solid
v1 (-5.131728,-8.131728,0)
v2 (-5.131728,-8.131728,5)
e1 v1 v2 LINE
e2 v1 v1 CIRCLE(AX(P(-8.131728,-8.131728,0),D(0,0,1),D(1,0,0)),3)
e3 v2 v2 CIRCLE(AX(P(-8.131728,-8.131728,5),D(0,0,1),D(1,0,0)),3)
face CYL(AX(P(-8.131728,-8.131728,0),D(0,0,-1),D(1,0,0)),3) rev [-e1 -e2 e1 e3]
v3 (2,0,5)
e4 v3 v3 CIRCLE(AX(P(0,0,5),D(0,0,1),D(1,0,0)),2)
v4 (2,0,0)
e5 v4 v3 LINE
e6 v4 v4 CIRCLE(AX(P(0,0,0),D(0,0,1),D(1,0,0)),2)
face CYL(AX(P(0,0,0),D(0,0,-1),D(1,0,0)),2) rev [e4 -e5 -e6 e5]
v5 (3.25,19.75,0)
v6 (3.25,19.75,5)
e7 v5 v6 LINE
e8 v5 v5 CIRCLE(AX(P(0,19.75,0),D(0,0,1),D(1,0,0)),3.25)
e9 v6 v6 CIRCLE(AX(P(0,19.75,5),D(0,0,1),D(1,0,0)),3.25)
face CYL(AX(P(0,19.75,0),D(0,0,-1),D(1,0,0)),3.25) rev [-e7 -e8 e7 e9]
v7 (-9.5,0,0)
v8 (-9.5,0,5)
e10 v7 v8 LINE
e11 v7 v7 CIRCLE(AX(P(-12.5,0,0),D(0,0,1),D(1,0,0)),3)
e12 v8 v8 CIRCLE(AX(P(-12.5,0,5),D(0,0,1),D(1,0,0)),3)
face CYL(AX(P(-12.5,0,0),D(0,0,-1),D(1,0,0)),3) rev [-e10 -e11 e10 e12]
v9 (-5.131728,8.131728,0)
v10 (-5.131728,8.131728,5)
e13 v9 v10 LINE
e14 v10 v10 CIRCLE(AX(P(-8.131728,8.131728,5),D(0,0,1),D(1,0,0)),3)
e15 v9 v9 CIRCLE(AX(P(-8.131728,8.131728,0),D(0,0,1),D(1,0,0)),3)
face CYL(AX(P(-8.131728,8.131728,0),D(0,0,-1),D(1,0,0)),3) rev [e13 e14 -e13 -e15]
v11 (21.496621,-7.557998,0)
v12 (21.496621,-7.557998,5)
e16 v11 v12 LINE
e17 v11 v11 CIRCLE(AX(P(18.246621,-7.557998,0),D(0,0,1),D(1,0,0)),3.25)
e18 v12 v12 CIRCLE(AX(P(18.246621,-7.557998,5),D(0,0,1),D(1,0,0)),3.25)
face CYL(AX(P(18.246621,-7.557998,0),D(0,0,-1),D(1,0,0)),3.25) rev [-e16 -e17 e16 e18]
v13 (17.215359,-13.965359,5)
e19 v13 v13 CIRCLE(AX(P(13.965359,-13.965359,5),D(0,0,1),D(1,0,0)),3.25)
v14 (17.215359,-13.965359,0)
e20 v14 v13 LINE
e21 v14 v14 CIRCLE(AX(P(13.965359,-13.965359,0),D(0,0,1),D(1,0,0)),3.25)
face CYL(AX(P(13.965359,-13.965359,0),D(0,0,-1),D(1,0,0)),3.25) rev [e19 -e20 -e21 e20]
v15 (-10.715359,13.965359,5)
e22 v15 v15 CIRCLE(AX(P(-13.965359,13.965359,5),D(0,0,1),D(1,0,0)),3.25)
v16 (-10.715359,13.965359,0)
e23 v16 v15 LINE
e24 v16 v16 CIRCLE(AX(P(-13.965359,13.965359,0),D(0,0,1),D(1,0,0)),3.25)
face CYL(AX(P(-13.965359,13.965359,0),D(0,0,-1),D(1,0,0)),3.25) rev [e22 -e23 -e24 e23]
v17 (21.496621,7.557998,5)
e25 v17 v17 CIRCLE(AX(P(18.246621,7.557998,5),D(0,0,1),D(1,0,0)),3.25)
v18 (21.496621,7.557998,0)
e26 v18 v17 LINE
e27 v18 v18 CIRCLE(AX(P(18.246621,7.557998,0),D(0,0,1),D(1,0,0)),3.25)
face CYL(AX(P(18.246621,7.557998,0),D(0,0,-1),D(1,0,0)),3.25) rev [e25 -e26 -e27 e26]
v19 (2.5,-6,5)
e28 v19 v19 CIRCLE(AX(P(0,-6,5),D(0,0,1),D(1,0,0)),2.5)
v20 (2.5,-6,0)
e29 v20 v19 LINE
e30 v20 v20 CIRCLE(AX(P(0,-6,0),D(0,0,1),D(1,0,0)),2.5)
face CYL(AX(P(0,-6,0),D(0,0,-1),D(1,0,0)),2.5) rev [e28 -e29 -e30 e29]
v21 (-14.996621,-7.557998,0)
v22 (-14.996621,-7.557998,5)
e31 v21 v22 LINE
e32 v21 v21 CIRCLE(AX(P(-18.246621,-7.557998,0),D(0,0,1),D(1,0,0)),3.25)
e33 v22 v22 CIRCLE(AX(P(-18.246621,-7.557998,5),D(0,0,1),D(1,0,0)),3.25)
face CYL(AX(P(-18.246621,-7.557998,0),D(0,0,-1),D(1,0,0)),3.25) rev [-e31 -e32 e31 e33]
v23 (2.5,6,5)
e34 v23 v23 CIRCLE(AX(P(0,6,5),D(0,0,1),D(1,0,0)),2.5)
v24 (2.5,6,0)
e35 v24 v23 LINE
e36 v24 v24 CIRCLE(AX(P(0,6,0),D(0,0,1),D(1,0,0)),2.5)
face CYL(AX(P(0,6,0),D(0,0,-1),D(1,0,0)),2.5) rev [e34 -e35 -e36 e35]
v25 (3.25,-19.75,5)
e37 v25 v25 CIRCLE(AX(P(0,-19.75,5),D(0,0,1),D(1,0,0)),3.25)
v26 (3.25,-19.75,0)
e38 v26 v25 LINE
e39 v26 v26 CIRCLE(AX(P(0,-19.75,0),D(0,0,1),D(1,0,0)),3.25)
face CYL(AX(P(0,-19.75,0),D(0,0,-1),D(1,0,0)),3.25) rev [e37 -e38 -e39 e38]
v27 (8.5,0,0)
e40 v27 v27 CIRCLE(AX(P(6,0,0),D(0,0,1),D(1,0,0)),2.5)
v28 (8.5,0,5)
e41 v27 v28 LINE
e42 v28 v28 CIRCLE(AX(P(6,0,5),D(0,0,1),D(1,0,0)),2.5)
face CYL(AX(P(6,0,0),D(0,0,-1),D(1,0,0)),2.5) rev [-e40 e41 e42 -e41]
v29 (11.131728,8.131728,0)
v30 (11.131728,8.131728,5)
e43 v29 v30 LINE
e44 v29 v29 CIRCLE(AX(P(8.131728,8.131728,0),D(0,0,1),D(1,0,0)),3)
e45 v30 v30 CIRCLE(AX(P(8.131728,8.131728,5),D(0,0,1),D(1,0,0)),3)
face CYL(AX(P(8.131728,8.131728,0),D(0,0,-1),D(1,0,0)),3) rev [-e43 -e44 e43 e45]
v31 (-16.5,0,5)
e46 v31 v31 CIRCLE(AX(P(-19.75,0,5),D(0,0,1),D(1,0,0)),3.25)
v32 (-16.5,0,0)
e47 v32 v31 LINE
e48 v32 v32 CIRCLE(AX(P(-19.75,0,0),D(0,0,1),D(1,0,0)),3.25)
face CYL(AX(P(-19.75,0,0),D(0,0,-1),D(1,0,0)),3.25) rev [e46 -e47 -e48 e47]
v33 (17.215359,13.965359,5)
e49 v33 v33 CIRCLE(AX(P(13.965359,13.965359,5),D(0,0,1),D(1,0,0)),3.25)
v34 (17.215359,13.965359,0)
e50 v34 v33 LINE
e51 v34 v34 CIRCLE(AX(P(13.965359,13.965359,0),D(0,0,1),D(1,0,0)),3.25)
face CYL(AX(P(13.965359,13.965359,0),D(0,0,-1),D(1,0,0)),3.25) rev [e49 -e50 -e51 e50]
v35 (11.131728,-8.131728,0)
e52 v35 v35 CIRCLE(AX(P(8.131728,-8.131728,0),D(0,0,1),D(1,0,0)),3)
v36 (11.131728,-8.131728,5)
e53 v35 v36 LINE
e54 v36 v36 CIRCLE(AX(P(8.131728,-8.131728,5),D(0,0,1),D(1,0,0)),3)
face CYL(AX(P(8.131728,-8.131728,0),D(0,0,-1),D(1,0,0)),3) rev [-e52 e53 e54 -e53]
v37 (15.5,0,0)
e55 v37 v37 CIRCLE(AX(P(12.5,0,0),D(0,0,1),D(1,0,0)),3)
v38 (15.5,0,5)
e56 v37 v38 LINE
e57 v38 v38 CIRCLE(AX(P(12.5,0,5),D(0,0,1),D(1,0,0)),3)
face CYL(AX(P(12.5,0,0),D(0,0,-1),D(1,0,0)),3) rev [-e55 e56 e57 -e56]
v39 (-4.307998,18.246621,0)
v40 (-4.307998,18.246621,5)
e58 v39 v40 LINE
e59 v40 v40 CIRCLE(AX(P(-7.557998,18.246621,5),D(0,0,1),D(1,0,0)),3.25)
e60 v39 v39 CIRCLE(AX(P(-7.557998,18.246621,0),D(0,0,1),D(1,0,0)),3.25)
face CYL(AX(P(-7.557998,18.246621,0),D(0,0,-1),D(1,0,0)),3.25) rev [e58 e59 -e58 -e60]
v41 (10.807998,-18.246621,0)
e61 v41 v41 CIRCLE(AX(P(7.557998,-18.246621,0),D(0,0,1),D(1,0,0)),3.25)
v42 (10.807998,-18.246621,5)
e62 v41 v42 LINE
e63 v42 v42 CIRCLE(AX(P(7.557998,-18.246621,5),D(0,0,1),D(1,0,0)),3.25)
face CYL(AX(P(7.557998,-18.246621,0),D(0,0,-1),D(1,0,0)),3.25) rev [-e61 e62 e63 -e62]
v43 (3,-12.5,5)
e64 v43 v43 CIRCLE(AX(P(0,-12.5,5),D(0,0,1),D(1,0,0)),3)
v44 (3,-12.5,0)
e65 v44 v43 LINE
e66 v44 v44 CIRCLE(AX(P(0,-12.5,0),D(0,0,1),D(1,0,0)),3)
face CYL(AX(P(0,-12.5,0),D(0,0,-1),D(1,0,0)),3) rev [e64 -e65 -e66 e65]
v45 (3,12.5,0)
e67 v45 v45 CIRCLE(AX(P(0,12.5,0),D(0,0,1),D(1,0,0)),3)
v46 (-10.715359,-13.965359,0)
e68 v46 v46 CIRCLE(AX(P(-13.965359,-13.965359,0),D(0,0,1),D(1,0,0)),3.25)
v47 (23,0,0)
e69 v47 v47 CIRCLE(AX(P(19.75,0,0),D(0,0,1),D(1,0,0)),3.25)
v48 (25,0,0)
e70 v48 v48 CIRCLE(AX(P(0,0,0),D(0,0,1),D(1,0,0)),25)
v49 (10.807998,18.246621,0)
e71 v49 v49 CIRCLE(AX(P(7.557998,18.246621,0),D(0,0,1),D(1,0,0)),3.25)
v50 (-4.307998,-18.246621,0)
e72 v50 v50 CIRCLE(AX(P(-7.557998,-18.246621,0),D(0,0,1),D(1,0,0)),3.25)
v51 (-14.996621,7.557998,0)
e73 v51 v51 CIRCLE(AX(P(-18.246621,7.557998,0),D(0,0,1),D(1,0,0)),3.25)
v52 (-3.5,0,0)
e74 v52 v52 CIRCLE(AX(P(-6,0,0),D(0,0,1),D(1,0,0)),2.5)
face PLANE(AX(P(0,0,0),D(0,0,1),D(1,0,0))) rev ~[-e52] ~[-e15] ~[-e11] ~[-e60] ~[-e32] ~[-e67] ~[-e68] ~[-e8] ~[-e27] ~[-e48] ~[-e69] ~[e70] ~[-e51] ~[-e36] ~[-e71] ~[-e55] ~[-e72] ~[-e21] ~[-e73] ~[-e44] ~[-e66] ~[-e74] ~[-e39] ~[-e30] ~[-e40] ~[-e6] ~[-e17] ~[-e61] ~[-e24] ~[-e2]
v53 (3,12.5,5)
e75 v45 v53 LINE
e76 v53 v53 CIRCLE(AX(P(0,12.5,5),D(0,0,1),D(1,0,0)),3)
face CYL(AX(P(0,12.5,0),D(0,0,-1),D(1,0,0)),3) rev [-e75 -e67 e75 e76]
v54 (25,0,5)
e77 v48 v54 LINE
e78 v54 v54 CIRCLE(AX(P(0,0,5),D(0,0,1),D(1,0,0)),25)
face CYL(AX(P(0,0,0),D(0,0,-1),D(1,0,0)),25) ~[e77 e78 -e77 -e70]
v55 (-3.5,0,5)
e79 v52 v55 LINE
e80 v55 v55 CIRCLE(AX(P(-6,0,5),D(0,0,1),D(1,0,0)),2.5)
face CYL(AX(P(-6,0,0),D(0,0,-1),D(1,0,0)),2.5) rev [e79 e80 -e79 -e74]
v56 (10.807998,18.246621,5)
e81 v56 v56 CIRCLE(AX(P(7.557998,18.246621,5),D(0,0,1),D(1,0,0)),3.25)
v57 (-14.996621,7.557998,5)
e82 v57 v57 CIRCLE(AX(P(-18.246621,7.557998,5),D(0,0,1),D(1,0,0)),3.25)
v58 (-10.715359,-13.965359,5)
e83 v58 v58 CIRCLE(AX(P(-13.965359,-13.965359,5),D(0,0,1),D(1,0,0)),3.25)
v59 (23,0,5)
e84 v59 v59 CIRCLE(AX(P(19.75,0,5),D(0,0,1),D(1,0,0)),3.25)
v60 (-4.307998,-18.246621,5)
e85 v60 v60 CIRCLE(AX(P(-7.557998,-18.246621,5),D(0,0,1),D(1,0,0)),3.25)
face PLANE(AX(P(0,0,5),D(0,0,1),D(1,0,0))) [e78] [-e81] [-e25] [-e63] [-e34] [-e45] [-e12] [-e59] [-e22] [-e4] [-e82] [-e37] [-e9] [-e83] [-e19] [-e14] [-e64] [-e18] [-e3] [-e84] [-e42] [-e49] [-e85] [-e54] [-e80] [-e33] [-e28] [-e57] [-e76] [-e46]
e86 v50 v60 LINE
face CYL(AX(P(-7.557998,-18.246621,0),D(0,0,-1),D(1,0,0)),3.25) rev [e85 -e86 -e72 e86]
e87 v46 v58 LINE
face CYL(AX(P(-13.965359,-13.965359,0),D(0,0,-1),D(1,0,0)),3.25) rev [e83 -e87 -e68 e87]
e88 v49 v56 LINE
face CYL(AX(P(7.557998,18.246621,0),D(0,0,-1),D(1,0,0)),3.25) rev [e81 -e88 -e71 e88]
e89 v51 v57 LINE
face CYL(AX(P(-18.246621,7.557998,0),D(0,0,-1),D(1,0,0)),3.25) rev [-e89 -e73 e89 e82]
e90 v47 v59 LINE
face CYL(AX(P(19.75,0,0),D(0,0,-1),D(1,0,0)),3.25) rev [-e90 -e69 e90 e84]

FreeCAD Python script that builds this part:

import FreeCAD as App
import Part
import Sketcher
from FreeCAD import Vector

doc = App.newDocument("Part")
body = doc.addObject("PartDesign::Body", "Body")

sketch1 = doc.addObject("Sketcher::SketchObject", "Sketch")
body.addObject(sketch1)
sketch1.AttachmentSupport = (doc.XY_Plane, [""])
sketch1.MapMode = "FlatFace"
sketch1.addGeometry([
    Part.Circle(Vector(0, 0, 0), Vector(0, 0, 1), 25),
    Part.Circle(Vector(-13.965359, -13.965359, 0), Vector(0, 0, 1), 3.25),
    Part.Circle(Vector(-7.557998, -18.246621, 0), Vector(0, 0, 1), 3.25),
    Part.Circle(Vector(-18.246621, -7.557998, 0), Vector(0, 0, 1), 3.25),
    Part.Circle(Vector(-8.131728, -8.131728, 0), Vector(0, 0, 1), 3),
    Part.Circle(Vector(0, -19.75, 0), Vector(0, 0, 1), 3.25),
    Part.Circle(Vector(7.557998, -18.246621, 0), Vector(0, 0, 1), 3.25),
    Part.Circle(Vector(0, -12.5, 0), Vector(0, 0, 1), 3),
    Part.Circle(Vector(13.965359, -13.965359, 0), Vector(0, 0, 1), 3.25),
    Part.Circle(Vector(0, -6, 0), Vector(0, 0, 1), 2.5),
    Part.Circle(Vector(8.131728, -8.131728, 0), Vector(0, 0, 1), 3),
    Part.Circle(Vector(18.246621, -7.557998, 0), Vector(0, 0, 1), 3.25),
    Part.Circle(Vector(-19.75, 0, 0), Vector(0, 0, 1), 3.25),
    Part.Circle(Vector(-12.5, 0, 0), Vector(0, 0, 1), 3),
    Part.Circle(Vector(-18.246621, 7.557998, 0), Vector(0, 0, 1), 3.25),
    Part.Circle(Vector(-6, 0, 0), Vector(0, 0, 1), 2.5),
    Part.Circle(Vector(-8.131728, 8.131728, 0), Vector(0, 0, 1), 3),
    Part.Circle(Vector(-13.965359, 13.965359, 0), Vector(0, 0, 1), 3.25),
    Part.Circle(Vector(-7.557998, 18.246621, 0), Vector(0, 0, 1), 3.25),
    Part.Circle(Vector(0, 0, 0), Vector(0, 0, 1), 2),
    Part.Circle(Vector(6, 0, 0), Vector(0, 0, 1), 2.5),
    Part.Circle(Vector(0, 6, 0), Vector(0, 0, 1), 2.5),
    Part.Circle(Vector(8.131728, 8.131728, 0), Vector(0, 0, 1), 3),
    Part.Circle(Vector(12.5, 0, 0), Vector(0, 0, 1), 3),
    Part.Circle(Vector(19.75, 0, 0), Vector(0, 0, 1), 3.25),
    Part.Circle(Vector(18.246621, 7.557998, 0), Vector(0, 0, 1), 3.25),
    Part.Circle(Vector(0, 12.5, 0), Vector(0, 0, 1), 3),
    Part.Circle(Vector(0, 19.75, 0), Vector(0, 0, 1), 3.25),
    Part.Circle(Vector(7.557998, 18.246621, 0), Vector(0, 0, 1), 3.25),
    Part.Circle(Vector(13.965359, 13.965359, 0), Vector(0, 0, 1), 3.25),
], False)
sketch1.addConstraint([
    Sketcher.Constraint("Coincident", 0, 3, -1, 1),
    Sketcher.Constraint("Coincident", 19, 3, -1, 1),
    Sketcher.Constraint("Equal", 1, 2),
    Sketcher.Constraint("Equal", 2, 3),
    Sketcher.Constraint("Equal", 3, 5),
    Sketcher.Constraint("Equal", 5, 6),
    Sketcher.Constraint("Equal", 4, 7),
    Sketcher.Constraint("Equal", 6, 8),
    Sketcher.Constraint("Equal", 7, 10),
    Sketcher.Constraint("Equal", 8, 11),
    Sketcher.Constraint("Equal", 11, 12),
    Sketcher.Constraint("Equal", 10, 13),
    Sketcher.Constraint("Equal", 12, 14),
    Sketcher.Constraint("Equal", 9, 15),
    Sketcher.Constraint("Equal", 13, 16),
    Sketcher.Constraint("Equal", 14, 17),
    Sketcher.Constraint("Equal", 17, 18),
    Sketcher.Constraint("Equal", 15, 20),
    Sketcher.Constraint("Equal", 20, 21),
    Sketcher.Constraint("Equal", 16, 22),
    Sketcher.Constraint("Equal", 22, 23),
    Sketcher.Constraint("Equal", 18, 24),
    Sketcher.Constraint("Equal", 24, 25),
    Sketcher.Constraint("Equal", 23, 26),
    Sketcher.Constraint("Equal", 25, 27),
    Sketcher.Constraint("Equal", 27, 28),
    Sketcher.Constraint("Equal", 28, 29),
    Sketcher.Constraint("Symmetric", 11, 3, 14, 3, -1, 1),
    Sketcher.Constraint("Symmetric", 10, 3, 16, 3, -1, 1),
    Sketcher.Constraint("Symmetric", 8, 3, 17, 3, -1, 1),
    Sketcher.Constraint("Symmetric", 6, 3, 18, 3, -1, 1),
    Sketcher.Constraint("Symmetric", 15, 3, 20, 3, -1, 1),
    Sketcher.Constraint("Symmetric", 9, 3, 21, 3, -1, 1),
    Sketcher.Constraint("Symmetric", 4, 3, 22, 3, -1, 1),
    Sketcher.Constraint("Symmetric", 13, 3, 23, 3, -1, 1),
    Sketcher.Constraint("Symmetric", 12, 3, 24, 3, -1, 1),
    Sketcher.Constraint("Symmetric", 3, 3, 25, 3, -1, 1),
    Sketcher.Constraint("Symmetric", 7, 3, 26, 3, -1, 1),
    Sketcher.Constraint("Symmetric", 5, 3, 27, 3, -1, 1),
    Sketcher.Constraint("Symmetric", 2, 3, 28, 3, -1, 1),
    Sketcher.Constraint("Symmetric", 1, 3, 29, 3, -1, 1),
    Sketcher.Constraint("Symmetric", 2, 3, 6, 3, -2),
    Sketcher.Constraint("Symmetric", 1, 3, 8, 3, -2),
    Sketcher.Constraint("Symmetric", 4, 3, 10, 3, -2),
    Sketcher.Constraint("Symmetric", 3, 3, 11, 3, -2),
    Sketcher.Constraint("PointOnObject", 5, 3, -2),
    Sketcher.Constraint("PointOnObject", 7, 3, -2),
    Sketcher.Constraint("PointOnObject", 9, 3, -2),
    Sketcher.Constraint("PointOnObject", 12, 3, -1),
    Sketcher.Constraint("PointOnObject", 13, 3, -1),
    Sketcher.Constraint("PointOnObject", 15, 3, -1),
    Sketcher.Constraint("Diameter", 0, 50.0),
    Sketcher.Constraint("Diameter", 4, 6.0),
    Sketcher.Constraint("Diameter", 9, 5.0),
    Sketcher.Constraint("Diameter", 19, 4.0),
    Sketcher.Constraint("Diameter", 1, 6.5),
    Sketcher.Constraint("DistanceY", 9, 3, -1, 1, 6.0),
    Sketcher.Constraint("DistanceX", 15, 3, -1, 1, 6.0),
    Sketcher.Constraint("DistanceY", 7, 3, -1, 1, 12.5),
    Sketcher.Constraint("DistanceX", 13, 3, -1, 1, 12.5),
    Sketcher.Constraint("DistanceY", 5, 3, -1, 1, 19.75),
    Sketcher.Constraint("DistanceX", 12, 3, -1, 1, 19.75),
    Sketcher.Constraint("DistanceX", 2, 3, -1, 1, 7.557998),
    Sketcher.Constraint("DistanceY", 3, 3, -1, 1, 7.557998),
    Sketcher.Constraint("DistanceX", 1, 3, -1, 1, 13.965359),
    Sketcher.Constraint("DistanceY", 1, 3, -1, 1, 13.965359),
    Sketcher.Constraint("DistanceY", 2, 3, -1, 1, 18.246621),
    Sketcher.Constraint("DistanceX", 3, 3, -1, 1, 18.246621),
    Sketcher.Constraint("DistanceX", 4, 3, -1, 1, 8.131728),
    Sketcher.Constraint("DistanceY", 4, 3, -1, 1, 8.131728),
])
pad1 = doc.addObject("PartDesign::Pad", "Pad")
body.addObject(pad1)
pad1.Profile = sketch1
pad1.Length = 5

doc.recompute()
